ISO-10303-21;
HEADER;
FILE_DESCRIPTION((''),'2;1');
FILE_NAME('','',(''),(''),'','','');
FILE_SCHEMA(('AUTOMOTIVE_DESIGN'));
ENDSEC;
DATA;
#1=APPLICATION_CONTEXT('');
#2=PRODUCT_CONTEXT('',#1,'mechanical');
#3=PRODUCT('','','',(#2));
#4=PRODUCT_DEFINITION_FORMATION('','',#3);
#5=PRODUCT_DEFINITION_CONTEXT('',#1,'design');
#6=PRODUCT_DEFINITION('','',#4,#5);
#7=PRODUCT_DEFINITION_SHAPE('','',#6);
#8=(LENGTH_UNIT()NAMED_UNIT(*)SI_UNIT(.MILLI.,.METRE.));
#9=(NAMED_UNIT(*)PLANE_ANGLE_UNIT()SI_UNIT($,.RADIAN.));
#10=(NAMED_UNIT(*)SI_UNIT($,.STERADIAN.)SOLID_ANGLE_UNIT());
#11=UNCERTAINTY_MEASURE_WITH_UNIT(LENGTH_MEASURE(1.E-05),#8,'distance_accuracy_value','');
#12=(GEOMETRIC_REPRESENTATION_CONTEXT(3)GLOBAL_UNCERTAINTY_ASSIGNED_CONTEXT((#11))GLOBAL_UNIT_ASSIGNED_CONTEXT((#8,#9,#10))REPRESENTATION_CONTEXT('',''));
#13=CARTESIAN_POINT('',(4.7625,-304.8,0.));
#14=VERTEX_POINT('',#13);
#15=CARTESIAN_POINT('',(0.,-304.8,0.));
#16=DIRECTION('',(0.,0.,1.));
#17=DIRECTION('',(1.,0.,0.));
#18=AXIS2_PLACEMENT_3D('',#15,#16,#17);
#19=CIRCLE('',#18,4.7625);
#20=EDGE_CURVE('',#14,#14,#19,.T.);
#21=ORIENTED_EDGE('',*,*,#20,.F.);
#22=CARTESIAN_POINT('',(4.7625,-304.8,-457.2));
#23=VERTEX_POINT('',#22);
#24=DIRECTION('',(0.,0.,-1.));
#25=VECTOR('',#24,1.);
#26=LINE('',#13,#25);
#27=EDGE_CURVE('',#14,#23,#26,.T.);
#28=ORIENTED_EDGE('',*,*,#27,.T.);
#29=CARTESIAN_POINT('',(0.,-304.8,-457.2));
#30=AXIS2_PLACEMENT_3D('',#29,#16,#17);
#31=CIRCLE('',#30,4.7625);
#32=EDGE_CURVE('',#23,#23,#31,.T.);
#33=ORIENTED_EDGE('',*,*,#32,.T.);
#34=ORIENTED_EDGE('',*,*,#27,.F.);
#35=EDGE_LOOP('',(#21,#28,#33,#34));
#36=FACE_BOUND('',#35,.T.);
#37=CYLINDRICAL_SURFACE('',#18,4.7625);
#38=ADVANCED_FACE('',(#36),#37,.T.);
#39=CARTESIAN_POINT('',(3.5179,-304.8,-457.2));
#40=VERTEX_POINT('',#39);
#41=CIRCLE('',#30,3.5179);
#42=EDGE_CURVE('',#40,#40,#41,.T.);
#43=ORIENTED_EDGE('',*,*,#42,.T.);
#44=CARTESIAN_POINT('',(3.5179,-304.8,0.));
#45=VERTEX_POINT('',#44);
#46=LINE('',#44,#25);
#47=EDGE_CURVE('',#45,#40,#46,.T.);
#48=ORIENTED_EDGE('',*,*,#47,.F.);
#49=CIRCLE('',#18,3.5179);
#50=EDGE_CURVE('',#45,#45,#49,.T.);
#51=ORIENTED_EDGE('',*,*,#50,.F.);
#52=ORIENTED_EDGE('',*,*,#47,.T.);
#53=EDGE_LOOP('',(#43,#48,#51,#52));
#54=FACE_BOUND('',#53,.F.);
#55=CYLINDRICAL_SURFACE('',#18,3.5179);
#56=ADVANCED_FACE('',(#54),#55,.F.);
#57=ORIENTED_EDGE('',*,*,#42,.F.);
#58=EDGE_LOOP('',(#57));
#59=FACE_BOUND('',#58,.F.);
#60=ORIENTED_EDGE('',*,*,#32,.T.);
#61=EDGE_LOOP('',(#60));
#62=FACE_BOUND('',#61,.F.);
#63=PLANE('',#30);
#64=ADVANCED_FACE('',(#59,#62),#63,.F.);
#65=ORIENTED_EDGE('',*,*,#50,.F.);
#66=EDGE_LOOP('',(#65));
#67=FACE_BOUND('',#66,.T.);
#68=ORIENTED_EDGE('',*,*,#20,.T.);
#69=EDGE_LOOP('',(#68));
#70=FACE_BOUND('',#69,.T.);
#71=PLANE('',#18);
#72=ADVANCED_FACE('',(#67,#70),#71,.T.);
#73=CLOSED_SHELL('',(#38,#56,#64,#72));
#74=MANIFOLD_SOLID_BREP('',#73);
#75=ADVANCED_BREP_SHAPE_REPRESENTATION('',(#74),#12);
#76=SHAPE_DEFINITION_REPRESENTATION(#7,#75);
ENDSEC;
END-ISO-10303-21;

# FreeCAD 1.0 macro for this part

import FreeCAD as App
import Part
import Sketcher
from FreeCAD import Vector
Q = App.Units.Quantity

doc = App.newDocument("Part")
body = doc.addObject("PartDesign::Body", "Body")

sketch1 = body.newObject("Sketcher::SketchObject", "Sketch")
sketch1.AttachmentSupport = (doc.getObject("XY_Plane"), [""])
sketch1.MapMode = "FlatFace"
sketch1.addGeometry(Part.Circle(Vector(0, -304.8, 0), Vector(0, 0, 1), 4.8), False)
sketch1.addGeometry(Part.Circle(Vector(0, -304.8, 0), Vector(0, 0, 1), 3.5), False)
sketch1.addConstraint(Sketcher.Constraint("Coincident", 1, 3, 0, 3))
sketch1.addConstraint(Sketcher.Constraint("PointOnObject", 0, 3, -2))
sketch1.addConstraint(Sketcher.Constraint("Diameter", 0, Q("0.375 in")))
sketch1.addConstraint(Sketcher.Constraint("Diameter", 1, Q("0.277 in")))
sketch1.addConstraint(Sketcher.Constraint("DistanceY", 0, 3, -1, 1, Q("12 in")))
pad1 = body.newObject("PartDesign::Pad", "Pad")
pad1.Profile = sketch1
pad1.Length = Q("18 in")
pad1.Reversed = True

doc.recompute()
